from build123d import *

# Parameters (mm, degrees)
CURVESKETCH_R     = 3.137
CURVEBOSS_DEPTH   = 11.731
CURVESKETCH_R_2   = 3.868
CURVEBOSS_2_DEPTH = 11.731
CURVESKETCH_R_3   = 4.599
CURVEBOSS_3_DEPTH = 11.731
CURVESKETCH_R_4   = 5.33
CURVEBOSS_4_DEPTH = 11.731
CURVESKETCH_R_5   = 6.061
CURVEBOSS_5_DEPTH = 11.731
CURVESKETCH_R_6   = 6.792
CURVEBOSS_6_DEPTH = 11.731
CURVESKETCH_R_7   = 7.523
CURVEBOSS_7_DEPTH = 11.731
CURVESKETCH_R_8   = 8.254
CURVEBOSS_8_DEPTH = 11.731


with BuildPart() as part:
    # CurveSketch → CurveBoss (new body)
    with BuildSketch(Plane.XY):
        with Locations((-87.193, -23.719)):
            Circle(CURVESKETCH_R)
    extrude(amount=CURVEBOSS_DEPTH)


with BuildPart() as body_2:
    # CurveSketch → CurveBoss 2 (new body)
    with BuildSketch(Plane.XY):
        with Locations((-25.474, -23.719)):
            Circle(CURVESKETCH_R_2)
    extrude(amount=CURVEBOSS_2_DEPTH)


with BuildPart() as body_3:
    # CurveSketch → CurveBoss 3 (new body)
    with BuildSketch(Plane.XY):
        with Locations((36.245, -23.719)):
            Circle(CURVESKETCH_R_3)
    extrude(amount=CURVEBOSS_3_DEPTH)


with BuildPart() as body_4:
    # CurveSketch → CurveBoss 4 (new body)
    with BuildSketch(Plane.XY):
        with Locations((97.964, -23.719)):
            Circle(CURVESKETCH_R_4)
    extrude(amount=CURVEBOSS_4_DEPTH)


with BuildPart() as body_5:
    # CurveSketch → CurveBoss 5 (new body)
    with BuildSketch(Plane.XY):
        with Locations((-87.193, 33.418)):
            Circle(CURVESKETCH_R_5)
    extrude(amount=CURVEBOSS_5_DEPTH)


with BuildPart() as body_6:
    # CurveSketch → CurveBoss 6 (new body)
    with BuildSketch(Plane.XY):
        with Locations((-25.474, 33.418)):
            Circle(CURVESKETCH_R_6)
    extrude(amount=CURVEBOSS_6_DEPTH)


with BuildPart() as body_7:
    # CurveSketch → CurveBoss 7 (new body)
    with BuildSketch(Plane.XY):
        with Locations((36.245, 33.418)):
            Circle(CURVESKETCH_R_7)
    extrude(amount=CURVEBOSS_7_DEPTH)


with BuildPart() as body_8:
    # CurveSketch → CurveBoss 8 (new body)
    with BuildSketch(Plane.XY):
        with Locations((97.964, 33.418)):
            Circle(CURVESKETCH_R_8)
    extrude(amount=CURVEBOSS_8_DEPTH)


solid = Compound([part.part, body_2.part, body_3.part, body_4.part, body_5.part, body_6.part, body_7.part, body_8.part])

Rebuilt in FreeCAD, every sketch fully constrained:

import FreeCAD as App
import Part
import Sketcher
from FreeCAD import Vector

doc = App.newDocument("Part")
body = doc.addObject("PartDesign::Body", "Body")

# Sketch on XY plane
sketch1 = body.newObject("Sketcher::SketchObject", "Sketch")
sketch1.AttachmentSupport = (doc.getObject("XY_Plane"), [""])
sketch1.MapMode = "FlatFace"
sketch1.addGeometry(Part.Circle(Vector(-87.193, -23.719, 0), Vector(0, 0, 1), 3.137), False)
sketch1.addConstraint(Sketcher.Constraint("Diameter", 0, 6.274))
sketch1.addConstraint(Sketcher.Constraint("DistanceX", 0, 3, -1, 1, 87.193))
sketch1.addConstraint(Sketcher.Constraint("DistanceY", 0, 3, -1, 1, 23.719))
pad1 = body.newObject("PartDesign::Pad", "Pad")
pad1.Profile = sketch1
pad1.Length = 11.731
body2 = doc.addObject("PartDesign::Body", "Body001")

# Sketch on XY plane
sketch2 = body2.newObject("Sketcher::SketchObject", "Sketch001")
sketch2.AttachmentSupport = (doc.getObject("XY_Plane001"), [""])
sketch2.MapMode = "FlatFace"
sketch2.addGeometry(Part.Circle(Vector(-25.474, -23.719, 0), Vector(0, 0, 1), 3.868), False)
sketch2.addConstraint(Sketcher.Constraint("Diameter", 0, 7.736))
sketch2.addConstraint(Sketcher.Constraint("DistanceX", 0, 3, -1, 1, 25.474))
sketch2.addConstraint(Sketcher.Constraint("DistanceY", 0, 3, -1, 1, 23.719))
pad2 = body2.newObject("PartDesign::Pad", "Pad001")
pad2.Profile = sketch2
pad2.Length = 11.731
body3 = doc.addObject("PartDesign::Body", "Body002")

# Sketch on XY plane
sketch3 = body3.newObject("Sketcher::SketchObject", "Sketch002")
sketch3.AttachmentSupport = (doc.getObject("XY_Plane002"), [""])
sketch3.MapMode = "FlatFace"
sketch3.addGeometry(Part.Circle(Vector(36.245, -23.719, 0), Vector(0, 0, 1), 4.599), False)
sketch3.addConstraint(Sketcher.Constraint("Diameter", 0, 9.198))
sketch3.addConstraint(Sketcher.Constraint("DistanceX", -1, 1, 0, 3, 36.245))
sketch3.addConstraint(Sketcher.Constraint("DistanceY", 0, 3, -1, 1, 23.719))
pad3 = body3.newObject("PartDesign::Pad", "Pad002")
pad3.Profile = sketch3
pad3.Length = 11.731
body4 = doc.addObject("PartDesign::Body", "Body003")

# Sketch on XY plane
sketch4 = body4.newObject("Sketcher::SketchObject", "Sketch003")
sketch4.AttachmentSupport = (doc.getObject("XY_Plane003"), [""])
sketch4.MapMode = "FlatFace"
sketch4.addGeometry(Part.Circle(Vector(97.964, -23.719, 0), Vector(0, 0, 1), 5.33), False)
sketch4.addConstraint(Sketcher.Constraint("Diameter", 0, 10.66))
sketch4.addConstraint(Sketcher.Constraint("DistanceX", -1, 1, 0, 3, 97.964))
sketch4.addConstraint(Sketcher.Constraint("DistanceY", 0, 3, -1, 1, 23.719))
pad4 = body4.newObject("PartDesign::Pad", "Pad003")
pad4.Profile = sketch4
pad4.Length = 11.731
body5 = doc.addObject("PartDesign::Body", "Body004")

# Sketch on XY plane
sketch5 = body5.newObject("Sketcher::SketchObject", "Sketch004")
sketch5.AttachmentSupport = (doc.getObject("XY_Plane004"), [""])
sketch5.MapMode = "FlatFace"
sketch5.addGeometry(Part.Circle(Vector(-87.193, 33.418, 0), Vector(0, 0, 1), 6.061), False)
sketch5.addConstraint(Sketcher.Constraint("Diameter", 0, 12.122))
sketch5.addConstraint(Sketcher.Constraint("DistanceX", 0, 3, -1, 1, 87.193))
sketch5.addConstraint(Sketcher.Constraint("DistanceY", -1, 1, 0, 3, 33.418))
pad5 = body5.newObject("PartDesign::Pad", "Pad004")
pad5.Profile = sketch5
pad5.Length = 11.731
body6 = doc.addObject("PartDesign::Body", "Body005")

# Sketch on XY plane
sketch6 = body6.newObject("Sketcher::SketchObject", "Sketch005")
sketch6.AttachmentSupport = (doc.getObject("XY_Plane005"), [""])
sketch6.MapMode = "FlatFace"
sketch6.addGeometry(Part.Circle(Vector(-25.474, 33.418, 0), Vector(0, 0, 1), 6.792), False)
sketch6.addConstraint(Sketcher.Constraint("Diameter", 0, 13.584))
sketch6.addConstraint(Sketcher.Constraint("DistanceX", 0, 3, -1, 1, 25.474))
sketch6.addConstraint(Sketcher.Constraint("DistanceY", -1, 1, 0, 3, 33.418))
pad6 = body6.newObject("PartDesign::Pad", "Pad005")
pad6.Profile = sketch6
pad6.Length = 11.731
body7 = doc.addObject("PartDesign::Body", "Body006")

# Sketch on XY plane
sketch7 = body7.newObject("Sketcher::SketchObject", "Sketch006")
sketch7.AttachmentSupport = (doc.getObject("XY_Plane006"), [""])
sketch7.MapMode = "FlatFace"
sketch7.addGeometry(Part.Circle(Vector(36.245, 33.418, 0), Vector(0, 0, 1), 7.523), False)
sketch7.addConstraint(Sketcher.Constraint("Diameter", 0, 15.046))
sketch7.addConstraint(Sketcher.Constraint("DistanceX", -1, 1, 0, 3, 36.245))
sketch7.addConstraint(Sketcher.Constraint("DistanceY", -1, 1, 0, 3, 33.418))
pad7 = body7.newObject("PartDesign::Pad", "Pad006")
pad7.Profile = sketch7
pad7.Length = 11.731
body8 = doc.addObject("PartDesign::Body", "Body007")

# Sketch on XY plane
sketch8 = body8.newObject("Sketcher::SketchObject", "Sketch007")
sketch8.AttachmentSupport = (doc.getObject("XY_Plane007"), [""])
sketch8.MapMode = "FlatFace"
sketch8.addGeometry(Part.Circle(Vector(97.964, 33.418, 0), Vector(0, 0, 1), 8.254), False)
sketch8.addConstraint(Sketcher.Constraint("Diameter", 0, 16.508))
sketch8.addConstraint(Sketcher.Constraint("DistanceX", -1, 1, 0, 3, 97.964))
sketch8.addConstraint(Sketcher.Constraint("DistanceY", -1, 1, 0, 3, 33.418))
pad8 = body8.newObject("PartDesign::Pad", "Pad007")
pad8.Profile = sketch8
pad8.Length = 11.731

doc.recompute()
